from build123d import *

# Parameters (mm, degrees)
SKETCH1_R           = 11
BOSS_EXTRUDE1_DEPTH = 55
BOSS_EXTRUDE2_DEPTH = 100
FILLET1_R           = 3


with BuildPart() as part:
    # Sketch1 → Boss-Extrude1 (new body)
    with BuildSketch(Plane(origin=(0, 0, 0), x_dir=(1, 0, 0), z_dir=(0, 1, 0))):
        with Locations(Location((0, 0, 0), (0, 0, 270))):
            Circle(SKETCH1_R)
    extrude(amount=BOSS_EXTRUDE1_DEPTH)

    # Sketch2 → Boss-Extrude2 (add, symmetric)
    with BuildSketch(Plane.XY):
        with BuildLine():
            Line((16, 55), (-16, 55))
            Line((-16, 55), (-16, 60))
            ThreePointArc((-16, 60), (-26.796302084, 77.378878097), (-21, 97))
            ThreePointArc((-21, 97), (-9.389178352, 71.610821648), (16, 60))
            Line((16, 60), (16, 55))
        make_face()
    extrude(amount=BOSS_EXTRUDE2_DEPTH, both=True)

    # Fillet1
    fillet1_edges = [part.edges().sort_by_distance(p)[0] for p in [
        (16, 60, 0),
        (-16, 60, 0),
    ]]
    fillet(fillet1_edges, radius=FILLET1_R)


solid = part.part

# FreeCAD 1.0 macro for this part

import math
import FreeCAD as App
import Part
import Sketcher
from FreeCAD import Vector


def edges_at(feature, points):
    """Names of the edges that pass closest to the given points."""
    edges = feature.Shape.Edges
    near = lambda p: min(range(len(edges)), key=lambda i: edges[i].distToShape(Part.Vertex(*p))[0])
    return sorted({f"Edge{near(p) + 1}" for p in points})

doc = App.newDocument("Part")
body = doc.addObject("PartDesign::Body", "Body")

sketch1 = body.newObject("Sketcher::SketchObject", "Sketch")
sketch1.AttachmentSupport = (doc.getObject("XZ_Plane"), [""])
sketch1.MapMode = "FlatFace"
sketch1.addGeometry(Part.Circle(Vector(0, 0, 0), Vector(0, 0, 1), 11), False)
sketch1.addConstraint(Sketcher.Constraint("Coincident", 0, 3, -1, 1))
sketch1.addConstraint(Sketcher.Constraint("Diameter", 0, 22.0))
pad1 = body.newObject("PartDesign::Pad", "Pad")
pad1.Profile = sketch1
pad1.Length = 55
pad1.Reversed = True

sketch2 = body.newObject("Sketcher::SketchObject", "Sketch001")
sketch2.AttachmentSupport = (doc.getObject("XY_Plane"), [""])
sketch2.MapMode = "FlatFace"
sketch2.addGeometry(Part.LineSegment(Vector(-16, 55, 0), Vector(16, 55, 0)), False)
sketch2.addGeometry(Part.LineSegment(Vector(16, 55, 0), Vector(16, 60, 0)), False)
sketch2.addGeometry(Part.ArcOfCircle(Part.Circle(Vector(18.895093, 99.895093, 0), Vector(0, 0, 1), 40), math.radians(-175.849456), math.radians(-94.150544)), False)
sketch2.addGeometry(Part.ArcOfCircle(Part.Circle(Vector(-2.021491, 80.726825, 0), Vector(0, 0, 1), 25), math.radians(139.388471), math.radians(236.003632)), False)
sketch2.addGeometry(Part.LineSegment(Vector(-16, 60, 0), Vector(-16, 55, 0)), False)
sketch2.addConstraint(Sketcher.Constraint("Coincident", 0, 2, 1, 1))
sketch2.addConstraint(Sketcher.Constraint("Coincident", 1, 2, 2, 2))
sketch2.addConstraint(Sketcher.Constraint("Coincident", 2, 1, 3, 1))
sketch2.addConstraint(Sketcher.Constraint("Coincident", 3, 2, 4, 1))
sketch2.addConstraint(Sketcher.Constraint("Coincident", 4, 2, 0, 1))
sketch2.addConstraint(Sketcher.Constraint("Horizontal", 0))
sketch2.addConstraint(Sketcher.Constraint("Vertical", 1))
sketch2.addConstraint(Sketcher.Constraint("Vertical", 4))
sketch2.addConstraint(Sketcher.Constraint("Symmetric", 1, 2, 3, 2, -2))
sketch2.addConstraint(Sketcher.Constraint("Radius", 2, 40.0))
sketch2.addConstraint(Sketcher.Constraint("Radius", 3, 25.0))
sketch2.addConstraint(Sketcher.Constraint("DistanceX", 0, 1, 0, 2, 32.0))
sketch2.addConstraint(Sketcher.Constraint("DistanceY", 1, 1, 1, 2, 5.0))
sketch2.addConstraint(Sketcher.Constraint("DistanceY", -1, 1, 0, 2, 55.0))
sketch2.addConstraint(Sketcher.Constraint("DistanceX", 2, 1, -1, 1, 21.0))
sketch2.addConstraint(Sketcher.Constraint("DistanceY", -1, 1, 2, 1, 97.0))
pad2 = body.newObject("PartDesign::Pad", "Pad001")
pad2.Profile = sketch2
pad2.Length = 200
pad2.Midplane = True
doc.recompute()

fillet = body.newObject("PartDesign::Fillet", "Fillet")
fillet.Base = (pad2, edges_at(pad2, [(16, 60, 0), (-16, 60, 0)]))
fillet.Radius = 3

doc.recompute()
